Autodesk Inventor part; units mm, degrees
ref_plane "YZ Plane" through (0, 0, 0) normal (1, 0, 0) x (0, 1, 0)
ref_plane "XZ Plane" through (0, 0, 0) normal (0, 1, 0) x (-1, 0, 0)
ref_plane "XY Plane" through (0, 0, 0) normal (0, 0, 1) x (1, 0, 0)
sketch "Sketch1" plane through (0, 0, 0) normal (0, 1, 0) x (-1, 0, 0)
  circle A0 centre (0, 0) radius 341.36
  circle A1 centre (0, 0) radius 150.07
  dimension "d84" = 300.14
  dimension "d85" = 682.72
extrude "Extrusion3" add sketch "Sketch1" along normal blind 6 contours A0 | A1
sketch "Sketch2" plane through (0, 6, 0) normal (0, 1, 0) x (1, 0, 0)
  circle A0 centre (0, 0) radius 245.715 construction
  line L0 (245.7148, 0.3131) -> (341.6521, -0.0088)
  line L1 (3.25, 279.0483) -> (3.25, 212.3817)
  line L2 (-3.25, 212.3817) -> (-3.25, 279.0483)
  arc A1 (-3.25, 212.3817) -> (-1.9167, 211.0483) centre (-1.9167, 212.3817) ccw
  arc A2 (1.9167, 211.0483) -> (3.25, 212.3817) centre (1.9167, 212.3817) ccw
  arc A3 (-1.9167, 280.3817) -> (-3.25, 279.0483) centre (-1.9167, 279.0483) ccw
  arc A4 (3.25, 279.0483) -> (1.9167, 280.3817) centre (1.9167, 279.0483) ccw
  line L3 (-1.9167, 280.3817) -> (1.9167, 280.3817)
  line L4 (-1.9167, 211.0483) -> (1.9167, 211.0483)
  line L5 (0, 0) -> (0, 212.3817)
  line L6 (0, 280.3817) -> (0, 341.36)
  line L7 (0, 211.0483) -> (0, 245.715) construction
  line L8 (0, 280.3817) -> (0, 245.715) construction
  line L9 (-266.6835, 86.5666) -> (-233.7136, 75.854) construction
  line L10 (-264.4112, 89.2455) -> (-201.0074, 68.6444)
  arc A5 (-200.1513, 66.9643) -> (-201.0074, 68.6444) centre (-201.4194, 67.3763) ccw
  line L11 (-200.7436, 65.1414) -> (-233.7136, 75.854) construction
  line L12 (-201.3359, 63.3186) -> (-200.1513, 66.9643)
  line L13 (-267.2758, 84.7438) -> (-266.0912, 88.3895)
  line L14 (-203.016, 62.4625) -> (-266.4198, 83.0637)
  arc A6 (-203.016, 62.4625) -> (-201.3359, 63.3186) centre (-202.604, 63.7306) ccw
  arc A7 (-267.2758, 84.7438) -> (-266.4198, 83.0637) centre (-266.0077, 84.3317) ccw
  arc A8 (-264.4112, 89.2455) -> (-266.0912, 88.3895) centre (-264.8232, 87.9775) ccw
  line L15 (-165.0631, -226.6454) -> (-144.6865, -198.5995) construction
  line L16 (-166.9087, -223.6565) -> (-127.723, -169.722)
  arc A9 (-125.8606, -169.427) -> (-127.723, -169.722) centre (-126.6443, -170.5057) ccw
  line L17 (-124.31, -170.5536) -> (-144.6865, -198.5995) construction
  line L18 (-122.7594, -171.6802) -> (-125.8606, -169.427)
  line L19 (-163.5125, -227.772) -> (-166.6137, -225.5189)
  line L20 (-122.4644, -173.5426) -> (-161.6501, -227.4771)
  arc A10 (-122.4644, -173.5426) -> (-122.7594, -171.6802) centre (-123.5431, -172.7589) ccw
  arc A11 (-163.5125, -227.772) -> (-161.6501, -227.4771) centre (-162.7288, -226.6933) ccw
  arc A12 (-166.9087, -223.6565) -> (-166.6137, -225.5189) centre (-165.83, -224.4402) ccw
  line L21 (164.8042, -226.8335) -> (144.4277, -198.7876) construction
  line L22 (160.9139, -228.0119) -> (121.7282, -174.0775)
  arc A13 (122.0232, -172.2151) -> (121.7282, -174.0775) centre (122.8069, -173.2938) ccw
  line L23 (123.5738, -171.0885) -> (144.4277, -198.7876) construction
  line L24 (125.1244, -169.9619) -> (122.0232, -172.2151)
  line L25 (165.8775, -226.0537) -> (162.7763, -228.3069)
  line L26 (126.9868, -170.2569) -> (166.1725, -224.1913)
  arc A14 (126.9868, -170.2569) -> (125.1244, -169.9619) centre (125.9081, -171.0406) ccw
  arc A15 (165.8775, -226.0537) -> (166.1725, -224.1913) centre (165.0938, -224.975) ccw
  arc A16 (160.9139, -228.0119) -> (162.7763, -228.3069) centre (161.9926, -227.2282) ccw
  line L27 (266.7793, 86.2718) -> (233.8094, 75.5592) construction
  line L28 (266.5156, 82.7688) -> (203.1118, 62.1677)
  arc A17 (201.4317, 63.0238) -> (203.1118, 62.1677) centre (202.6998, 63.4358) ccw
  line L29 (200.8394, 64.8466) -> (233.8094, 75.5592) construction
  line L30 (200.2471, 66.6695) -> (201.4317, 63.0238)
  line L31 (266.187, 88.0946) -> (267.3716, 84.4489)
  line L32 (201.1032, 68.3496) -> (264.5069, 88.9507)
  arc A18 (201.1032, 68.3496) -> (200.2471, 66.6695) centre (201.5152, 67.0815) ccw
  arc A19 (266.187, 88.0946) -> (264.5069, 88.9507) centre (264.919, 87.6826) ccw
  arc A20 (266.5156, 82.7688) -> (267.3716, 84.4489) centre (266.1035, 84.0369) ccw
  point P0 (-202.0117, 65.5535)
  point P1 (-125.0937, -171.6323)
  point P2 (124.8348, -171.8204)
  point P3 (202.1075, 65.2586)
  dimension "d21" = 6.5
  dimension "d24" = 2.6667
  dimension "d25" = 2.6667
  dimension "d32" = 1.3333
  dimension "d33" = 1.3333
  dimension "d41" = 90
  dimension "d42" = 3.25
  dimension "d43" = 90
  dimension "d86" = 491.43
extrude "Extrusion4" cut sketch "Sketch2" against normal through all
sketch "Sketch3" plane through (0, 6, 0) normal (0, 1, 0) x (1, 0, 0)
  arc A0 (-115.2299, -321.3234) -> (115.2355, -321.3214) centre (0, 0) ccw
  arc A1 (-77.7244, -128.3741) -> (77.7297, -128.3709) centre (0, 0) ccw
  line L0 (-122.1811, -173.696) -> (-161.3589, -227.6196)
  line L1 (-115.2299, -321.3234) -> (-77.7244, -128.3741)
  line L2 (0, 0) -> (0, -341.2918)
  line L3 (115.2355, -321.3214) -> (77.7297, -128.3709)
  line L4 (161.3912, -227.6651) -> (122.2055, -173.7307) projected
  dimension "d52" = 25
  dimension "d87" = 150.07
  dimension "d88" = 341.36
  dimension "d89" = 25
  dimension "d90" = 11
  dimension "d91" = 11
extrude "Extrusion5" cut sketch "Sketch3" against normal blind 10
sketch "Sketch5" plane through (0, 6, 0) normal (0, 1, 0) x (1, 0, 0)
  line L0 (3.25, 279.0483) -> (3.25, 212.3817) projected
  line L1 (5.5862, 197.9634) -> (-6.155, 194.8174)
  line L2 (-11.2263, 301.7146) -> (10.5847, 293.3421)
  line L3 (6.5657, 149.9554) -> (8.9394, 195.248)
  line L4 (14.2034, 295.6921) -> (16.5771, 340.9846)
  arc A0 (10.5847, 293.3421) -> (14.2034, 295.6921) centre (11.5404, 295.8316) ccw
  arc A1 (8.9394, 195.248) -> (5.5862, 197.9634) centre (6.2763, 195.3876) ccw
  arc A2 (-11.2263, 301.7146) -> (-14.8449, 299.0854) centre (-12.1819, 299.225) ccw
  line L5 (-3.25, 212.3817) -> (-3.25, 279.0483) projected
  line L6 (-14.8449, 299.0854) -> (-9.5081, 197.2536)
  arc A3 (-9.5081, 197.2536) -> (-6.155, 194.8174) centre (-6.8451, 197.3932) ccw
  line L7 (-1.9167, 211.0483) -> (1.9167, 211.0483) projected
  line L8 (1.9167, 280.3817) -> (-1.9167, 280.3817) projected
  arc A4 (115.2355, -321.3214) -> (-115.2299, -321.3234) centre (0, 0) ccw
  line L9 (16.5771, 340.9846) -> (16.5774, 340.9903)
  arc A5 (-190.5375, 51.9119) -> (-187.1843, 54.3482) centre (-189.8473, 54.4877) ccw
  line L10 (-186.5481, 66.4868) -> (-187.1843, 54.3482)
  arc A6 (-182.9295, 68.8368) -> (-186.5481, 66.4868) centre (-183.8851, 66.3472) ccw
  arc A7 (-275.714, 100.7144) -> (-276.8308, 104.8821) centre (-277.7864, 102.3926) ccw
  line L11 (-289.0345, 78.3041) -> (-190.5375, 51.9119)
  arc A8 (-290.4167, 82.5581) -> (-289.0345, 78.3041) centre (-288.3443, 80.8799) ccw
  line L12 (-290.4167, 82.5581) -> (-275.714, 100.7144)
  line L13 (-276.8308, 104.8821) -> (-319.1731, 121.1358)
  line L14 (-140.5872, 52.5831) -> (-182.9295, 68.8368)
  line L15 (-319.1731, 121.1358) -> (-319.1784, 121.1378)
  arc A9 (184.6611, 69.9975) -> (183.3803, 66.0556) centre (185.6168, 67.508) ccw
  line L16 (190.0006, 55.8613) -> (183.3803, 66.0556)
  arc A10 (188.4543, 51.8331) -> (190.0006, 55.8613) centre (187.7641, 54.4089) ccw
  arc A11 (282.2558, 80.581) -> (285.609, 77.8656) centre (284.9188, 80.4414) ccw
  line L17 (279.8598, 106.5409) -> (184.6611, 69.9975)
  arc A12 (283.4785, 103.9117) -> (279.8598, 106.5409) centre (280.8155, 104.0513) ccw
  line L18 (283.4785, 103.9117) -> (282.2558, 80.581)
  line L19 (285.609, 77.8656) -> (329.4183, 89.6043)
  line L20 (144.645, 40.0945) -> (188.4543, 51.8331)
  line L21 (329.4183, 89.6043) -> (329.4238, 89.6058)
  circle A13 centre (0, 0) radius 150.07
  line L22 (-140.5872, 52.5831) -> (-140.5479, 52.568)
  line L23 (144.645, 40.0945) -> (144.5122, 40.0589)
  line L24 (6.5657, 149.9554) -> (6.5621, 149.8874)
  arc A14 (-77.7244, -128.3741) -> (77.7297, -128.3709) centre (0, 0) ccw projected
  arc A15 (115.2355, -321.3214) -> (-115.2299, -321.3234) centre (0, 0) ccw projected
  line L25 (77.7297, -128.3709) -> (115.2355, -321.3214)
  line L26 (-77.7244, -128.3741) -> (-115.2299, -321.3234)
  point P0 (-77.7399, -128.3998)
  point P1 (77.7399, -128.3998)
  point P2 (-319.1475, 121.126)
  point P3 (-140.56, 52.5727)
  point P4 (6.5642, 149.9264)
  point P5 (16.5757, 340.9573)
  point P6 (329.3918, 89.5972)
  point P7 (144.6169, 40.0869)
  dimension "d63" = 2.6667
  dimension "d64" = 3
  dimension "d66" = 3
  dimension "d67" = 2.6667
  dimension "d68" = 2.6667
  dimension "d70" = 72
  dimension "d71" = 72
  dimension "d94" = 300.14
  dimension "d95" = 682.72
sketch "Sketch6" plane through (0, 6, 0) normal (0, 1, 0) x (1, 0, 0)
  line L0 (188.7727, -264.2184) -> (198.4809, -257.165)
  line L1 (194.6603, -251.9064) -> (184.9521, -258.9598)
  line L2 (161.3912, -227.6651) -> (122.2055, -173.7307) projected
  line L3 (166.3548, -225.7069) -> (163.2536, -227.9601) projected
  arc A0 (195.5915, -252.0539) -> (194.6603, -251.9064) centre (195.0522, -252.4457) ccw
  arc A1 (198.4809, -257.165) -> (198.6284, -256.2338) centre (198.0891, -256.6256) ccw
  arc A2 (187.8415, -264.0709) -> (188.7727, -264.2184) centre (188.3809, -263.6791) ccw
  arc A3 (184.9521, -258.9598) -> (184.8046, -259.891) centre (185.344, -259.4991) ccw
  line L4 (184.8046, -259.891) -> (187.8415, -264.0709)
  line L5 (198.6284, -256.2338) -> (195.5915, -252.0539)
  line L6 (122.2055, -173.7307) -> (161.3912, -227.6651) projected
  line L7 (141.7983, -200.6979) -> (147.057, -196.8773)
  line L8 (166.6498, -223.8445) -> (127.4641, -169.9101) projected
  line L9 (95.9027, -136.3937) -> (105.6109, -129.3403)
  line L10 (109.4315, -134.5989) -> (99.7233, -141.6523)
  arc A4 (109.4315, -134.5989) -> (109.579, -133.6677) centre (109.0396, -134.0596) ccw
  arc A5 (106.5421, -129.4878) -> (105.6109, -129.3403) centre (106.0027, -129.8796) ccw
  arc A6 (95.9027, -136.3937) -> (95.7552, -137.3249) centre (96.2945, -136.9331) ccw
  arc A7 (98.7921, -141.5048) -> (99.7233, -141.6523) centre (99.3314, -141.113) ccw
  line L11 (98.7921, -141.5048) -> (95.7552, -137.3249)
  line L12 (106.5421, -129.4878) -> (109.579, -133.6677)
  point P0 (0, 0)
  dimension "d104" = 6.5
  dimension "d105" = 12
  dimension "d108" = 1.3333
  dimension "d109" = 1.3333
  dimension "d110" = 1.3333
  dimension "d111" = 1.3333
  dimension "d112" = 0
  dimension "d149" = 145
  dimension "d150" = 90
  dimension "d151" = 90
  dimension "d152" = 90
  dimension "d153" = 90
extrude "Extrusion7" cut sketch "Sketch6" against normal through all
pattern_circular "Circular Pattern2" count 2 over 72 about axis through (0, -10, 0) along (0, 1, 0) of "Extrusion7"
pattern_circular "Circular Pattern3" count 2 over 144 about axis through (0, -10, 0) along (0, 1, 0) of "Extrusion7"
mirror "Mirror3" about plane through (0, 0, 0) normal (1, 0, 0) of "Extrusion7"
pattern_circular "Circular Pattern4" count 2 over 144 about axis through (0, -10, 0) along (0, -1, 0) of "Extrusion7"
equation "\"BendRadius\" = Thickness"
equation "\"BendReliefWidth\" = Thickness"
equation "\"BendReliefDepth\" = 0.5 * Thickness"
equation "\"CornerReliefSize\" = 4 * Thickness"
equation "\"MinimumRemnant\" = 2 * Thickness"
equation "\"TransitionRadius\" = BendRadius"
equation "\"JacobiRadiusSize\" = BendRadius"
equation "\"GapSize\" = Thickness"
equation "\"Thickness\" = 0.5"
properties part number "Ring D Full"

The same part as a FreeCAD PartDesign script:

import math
import FreeCAD as App
import Part
import Sketcher

V = App.Vector
Q = App.Units.Quantity

doc = App.newDocument("Part")
body = doc.addObject("PartDesign::Body", "Body")

# Sketch on XZ plane
sketch1 = body.newObject("Sketcher::SketchObject", "Sketch")
sketch1.AttachmentSupport = (doc.getObject("XZ_Plane"), [""])
sketch1.MapMode = "FlatFace"
sketch1.addGeometry(Part.Circle(V(0, 0, 0), V(0, 0, 1), 341.36), False)
sketch1.addConstraint(Sketcher.Constraint("Coincident", 0, 3, -1, 1))
sketch1.addConstraint(Sketcher.Constraint("Diameter", 0, Q("682.72 mm")))
pad1 = body.newObject("PartDesign::Pad", "Pad")
pad1.Profile = sketch1
pad1.Length = 6
pad1.Reversed = True

# Sketch on XZ plane
sketch2 = body.newObject("Sketcher::SketchObject", "Sketch001")
sketch2.AttachmentSupport = (doc.getObject("XZ_Plane"), [""])
sketch2.MapMode = "FlatFace"
sketch2.AttachmentOffset = App.Placement(V(0, 0, -6), App.Rotation())
sketch2.addGeometry(Part.LineSegment(V(3.25, -212.3817, 0), V(3.25, -279.0483, 0)), False)
sketch2.addGeometry(Part.ArcOfCircle(Part.Circle(V(1.9167, -279.0483, 0), V(0, 0, 1), 1.3333), math.radians(-90), math.radians(0)), False)
sketch2.addGeometry(Part.LineSegment(V(1.9167, -280.3817, 0), V(-1.9167, -280.3817, 0)), False)
sketch2.addGeometry(Part.ArcOfCircle(Part.Circle(V(-1.9167, -279.0483, 0), V(0, 0, 1), 1.3334), math.radians(180), math.radians(270)), False)
sketch2.addGeometry(Part.LineSegment(V(-3.25, -279.0483, 0), V(-3.25, -212.3817, 0)), False)
sketch2.addGeometry(Part.ArcOfCircle(Part.Circle(V(-1.9167, -212.3817, 0), V(0, 0, 1), 1.3333), math.radians(90), math.radians(180)), False)
sketch2.addGeometry(Part.LineSegment(V(-1.9167, -211.0483, 0), V(1.9167, -211.0483, 0)), False)
sketch2.addGeometry(Part.ArcOfCircle(Part.Circle(V(1.9167, -212.3817, 0), V(0, 0, 1), 1.3334), math.radians(0), math.radians(90)), False)
sketch2.addGeometry(Part.LineSegment(V(-201.0074, -68.6444, 0), V(-264.4112, -89.2455, 0)), False)
sketch2.addGeometry(Part.ArcOfCircle(Part.Circle(V(-264.8232, -87.9775, 0), V(0, 0, 1), 1.333255), math.radians(-161.999925), math.radians(-71.999925)), False)
sketch2.addGeometry(Part.LineSegment(V(-266.0912, -88.3895, 0), V(-267.2758, -84.7438, 0)), False)
sketch2.addGeometry(Part.ArcOfCircle(Part.Circle(V(-266.0077, -84.3317, 0), V(0, 0, 1), 1.333381), math.radians(108.004162), math.radians(198.002833)), False)
sketch2.addGeometry(Part.LineSegment(V(-266.4198, -83.0637, 0), V(-203.016, -62.4625, 0)), False)
sketch2.addGeometry(Part.ArcOfCircle(Part.Circle(V(-202.604, -63.7306, 0), V(0, 0, 1), 1.33335), math.radians(17.998747), math.radians(107.998747)), False)
sketch2.addGeometry(Part.LineSegment(V(-201.3359, -63.3186, 0), V(-200.1513, -66.9643, 0)), False)
sketch2.addGeometry(Part.ArcOfCircle(Part.Circle(V(-201.4194, -67.3763, 0), V(0, 0, 1), 1.33335), math.radians(-72.001253), math.radians(17.998747)), False)
sketch2.addGeometry(Part.LineSegment(V(-127.723, 169.722, 0), V(-166.9087, 223.6565, 0)), False)
sketch2.addGeometry(Part.ArcOfCircle(Part.Circle(V(-165.83, 224.4402, 0), V(0, 0, 1), 1.333334), math.radians(125.999255), math.radians(215.999255)), False)
sketch2.addGeometry(Part.LineSegment(V(-166.6137, 225.5189, 0), V(-163.5125, 227.772, 0)), False)
sketch2.addGeometry(Part.ArcOfCircle(Part.Circle(V(-162.7288, 226.6933, 0), V(0, 0, 1), 1.333334), math.radians(36.002732), math.radians(125.999255)), False)
sketch2.addGeometry(Part.LineSegment(V(-161.6501, 227.4771, 0), V(-122.4644, 173.5426, 0)), False)
sketch2.addGeometry(Part.ArcOfCircle(Part.Circle(V(-123.5431, 172.7589, 0), V(0, 0, 1), 1.333334), math.radians(-54.000745), math.radians(35.999255)), False)
sketch2.addGeometry(Part.LineSegment(V(-122.7594, 171.6802, 0), V(-125.8606, 169.427, 0)), False)
sketch2.addGeometry(Part.ArcOfCircle(Part.Circle(V(-126.6443, 170.5057, 0), V(0, 0, 1), 1.333334), math.radians(-144.000745), math.radians(-54.000745)), False)
sketch2.addGeometry(Part.LineSegment(V(121.7282, 174.0775, 0), V(160.9139, 228.0119, 0)), False)
sketch2.addGeometry(Part.ArcOfCircle(Part.Circle(V(161.9926, 227.2282, 0), V(0, 0, 1), 1.333334), math.radians(54.000745), math.radians(144.000745)), False)
sketch2.addGeometry(Part.LineSegment(V(162.7763, 228.3069, 0), V(165.8775, 226.0537, 0)), False)
sketch2.addGeometry(Part.ArcOfCircle(Part.Circle(V(165.0938, 224.975, 0), V(0, 0, 1), 1.333334), math.radians(-35.999255), math.radians(54.000745)), False)
sketch2.addGeometry(Part.LineSegment(V(166.1725, 224.1913, 0), V(126.9868, 170.2569, 0)), False)
sketch2.addGeometry(Part.ArcOfCircle(Part.Circle(V(125.9081, 171.0406, 0), V(0, 0, 1), 1.333334), math.radians(-125.999255), math.radians(-35.999255)), False)
sketch2.addGeometry(Part.LineSegment(V(125.1244, 169.9619, 0), V(122.0232, 172.2151, 0)), False)
sketch2.addGeometry(Part.ArcOfCircle(Part.Circle(V(122.8069, 173.2938, 0), V(0, 0, 1), 1.333334), math.radians(144.000745), math.radians(234.000745)), False)
sketch2.addGeometry(Part.LineSegment(V(203.1118, -62.1677, 0), V(266.5156, -82.7688, 0)), False)
sketch2.addGeometry(Part.ArcOfCircle(Part.Circle(V(266.1035, -84.0369, 0), V(0, 0, 1), 1.333381), math.radians(-17.998747), math.radians(71.997167)), False)
sketch2.addGeometry(Part.LineSegment(V(267.3716, -84.4489, 0), V(266.187, -88.0946, 0)), False)
sketch2.addGeometry(Part.ArcOfCircle(Part.Circle(V(264.919, -87.6826, 0), V(0, 0, 1), 1.333255), math.radians(-108.002833), math.radians(-18.000075)), False)
sketch2.addGeometry(Part.LineSegment(V(264.5069, -88.9507, 0), V(201.1032, -68.3496, 0)), False)
sketch2.addGeometry(Part.ArcOfCircle(Part.Circle(V(201.5152, -67.0815, 0), V(0, 0, 1), 1.33335), math.radians(162.001253), math.radians(252.001253)), False)
sketch2.addGeometry(Part.LineSegment(V(200.2471, -66.6695, 0), V(201.4317, -63.0238, 0)), False)
sketch2.addGeometry(Part.ArcOfCircle(Part.Circle(V(202.6998, -63.4358, 0), V(0, 0, 1), 1.33335), math.radians(72.001253), math.radians(162.001253)), False)
sketch2.addConstraint(Sketcher.Constraint("Tangent", 0, 2, 1, 2))
sketch2.addConstraint(Sketcher.Constraint("Tangent", 1, 1, 2, 1))
sketch2.addConstraint(Sketcher.Constraint("Tangent", 2, 2, 3, 2))
sketch2.addConstraint(Sketcher.Constraint("Tangent", 3, 1, 4, 1))
sketch2.addConstraint(Sketcher.Constraint("Tangent", 4, 2, 5, 2))
sketch2.addConstraint(Sketcher.Constraint("Tangent", 5, 1, 6, 1))
sketch2.addConstraint(Sketcher.Constraint("Tangent", 6, 2, 7, 2))
sketch2.addConstraint(Sketcher.Constraint("Tangent", 7, 1, 0, 1))
sketch2.addConstraint(Sketcher.Constraint("Tangent", 8, 2, 9, 2))
sketch2.addConstraint(Sketcher.Constraint("Tangent", 9, 1, 10, 1))
sketch2.addConstraint(Sketcher.Constraint("Tangent", 10, 2, 11, 2))
sketch2.addConstraint(Sketcher.Constraint("Tangent", 11, 1, 12, 1))
sketch2.addConstraint(Sketcher.Constraint("Tangent", 12, 2, 13, 2))
sketch2.addConstraint(Sketcher.Constraint("Tangent", 13, 1, 14, 1))
sketch2.addConstraint(Sketcher.Constraint("Tangent", 14, 2, 15, 2))
sketch2.addConstraint(Sketcher.Constraint("Tangent", 15, 1, 8, 1))
sketch2.addConstraint(Sketcher.Constraint("Tangent", 16, 2, 17, 2))
sketch2.addConstraint(Sketcher.Constraint("Tangent", 17, 1, 18, 1))
sketch2.addConstraint(Sketcher.Constraint("Tangent", 18, 2, 19, 2))
sketch2.addConstraint(Sketcher.Constraint("Tangent", 19, 1, 20, 1))
sketch2.addConstraint(Sketcher.Constraint("Tangent", 20, 2, 21, 2))
sketch2.addConstraint(Sketcher.Constraint("Tangent", 21, 1, 22, 1))
sketch2.addConstraint(Sketcher.Constraint("Tangent", 22, 2, 23, 2))
sketch2.addConstraint(Sketcher.Constraint("Tangent", 23, 1, 16, 1))
sketch2.addConstraint(Sketcher.Constraint("Tangent", 24, 2, 25, 2))
sketch2.addConstraint(Sketcher.Constraint("Tangent", 25, 1, 26, 1))
sketch2.addConstraint(Sketcher.Constraint("Tangent", 26, 2, 27, 2))
sketch2.addConstraint(Sketcher.Constraint("Tangent", 27, 1, 28, 1))
sketch2.addConstraint(Sketcher.Constraint("Tangent", 28, 2, 29, 2))
sketch2.addConstraint(Sketcher.Constraint("Tangent", 29, 1, 30, 1))
sketch2.addConstraint(Sketcher.Constraint("Tangent", 30, 2, 31, 2))
sketch2.addConstraint(Sketcher.Constraint("Tangent", 31, 1, 24, 1))
sketch2.addConstraint(Sketcher.Constraint("Tangent", 32, 2, 33, 2))
sketch2.addConstraint(Sketcher.Constraint("Tangent", 33, 1, 34, 1))
sketch2.addConstraint(Sketcher.Constraint("Tangent", 34, 2, 35, 2))
sketch2.addConstraint(Sketcher.Constraint("Tangent", 35, 1, 36, 1))
sketch2.addConstraint(Sketcher.Constraint("Tangent", 36, 2, 37, 2))
sketch2.addConstraint(Sketcher.Constraint("Tangent", 37, 1, 38, 1))
sketch2.addConstraint(Sketcher.Constraint("Tangent", 38, 2, 39, 2))
sketch2.addConstraint(Sketcher.Constraint("Tangent", 39, 1, 32, 1))
sketch2.addConstraint(Sketcher.Constraint("Vertical", 0))
sketch2.addConstraint(Sketcher.Constraint("Horizontal", 2))
sketch2.addConstraint(Sketcher.Constraint("Vertical", 4))
sketch2.addConstraint(Sketcher.Constraint("Horizontal", 6))
sketch2.addConstraint(Sketcher.Constraint("Equal", 1, 3))
sketch2.addConstraint(Sketcher.Constraint("Equal", 3, 5))
sketch2.addConstraint(Sketcher.Constraint("Equal", 5, 7))
sketch2.addConstraint(Sketcher.Constraint("Equal", 7, 9))
sketch2.addConstraint(Sketcher.Constraint("Equal", 9, 11))
sketch2.addConstraint(Sketcher.Constraint("Equal", 11, 13))
sketch2.addConstraint(Sketcher.Constraint("Equal", 13, 15))
sketch2.addConstraint(Sketcher.Constraint("Equal", 15, 17))
sketch2.addConstraint(Sketcher.Constraint("Equal", 17, 19))
sketch2.addConstraint(Sketcher.Constraint("Equal", 19, 21))
sketch2.addConstraint(Sketcher.Constraint("Equal", 21, 23))
sketch2.addConstraint(Sketcher.Constraint("Equal", 23, 25))
sketch2.addConstraint(Sketcher.Constraint("Equal", 25, 27))
sketch2.addConstraint(Sketcher.Constraint("Equal", 27, 29))
sketch2.addConstraint(Sketcher.Constraint("Equal", 29, 31))
sketch2.addConstraint(Sketcher.Constraint("Equal", 31, 33))
sketch2.addConstraint(Sketcher.Constraint("Equal", 33, 35))
sketch2.addConstraint(Sketcher.Constraint("Equal", 35, 37))
sketch2.addConstraint(Sketcher.Constraint("Equal", 37, 39))
sketch2.addConstraint(Sketcher.Constraint("Perpendicular", 8, 10))
sketch2.addConstraint(Sketcher.Constraint("Perpendicular", 10, 12))
sketch2.addConstraint(Sketcher.Constraint("Perpendicular", 12, 14))
sketch2.addConstraint(Sketcher.Constraint("Perpendicular", 16, 18))
sketch2.addConstraint(Sketcher.Constraint("Perpendicular", 18, 20))
sketch2.addConstraint(Sketcher.Constraint("Perpendicular", 20, 22))
sketch2.addConstraint(Sketcher.Constraint("Perpendicular", 24, 26))
sketch2.addConstraint(Sketcher.Constraint("Perpendicular", 26, 28))
sketch2.addConstraint(Sketcher.Constraint("Perpendicular", 28, 30))
sketch2.addConstraint(Sketcher.Constraint("Perpendicular", 32, 34))
sketch2.addConstraint(Sketcher.Constraint("Perpendicular", 34, 36))
sketch2.addConstraint(Sketcher.Constraint("Perpendicular", 36, 38))
sketch2.addConstraint(Sketcher.Constraint("Equal", 12, 16))
sketch2.addConstraint(Sketcher.Constraint("Equal", 14, 18))
sketch2.addConstraint(Sketcher.Constraint("Equal", 20, 24))
sketch2.addConstraint(Sketcher.Constraint("Equal", 22, 26))
sketch2.addConstraint(Sketcher.Constraint("Equal", 28, 32))
sketch2.addConstraint(Sketcher.Constraint("Equal", 30, 34))
sketch2.addConstraint(Sketcher.Constraint("Radius", 1, Q("0.0525 in")))
sketch2.addConstraint(Sketcher.Constraint("Angle", 8, Q("-162 deg")))
sketch2.addConstraint(Sketcher.Constraint("Angle", 16, Q("126 deg")))
sketch2.addConstraint(Sketcher.Constraint("Angle", 24, Q("54 deg")))
sketch2.addConstraint(Sketcher.Constraint("Angle", 32, Q("-18 deg")))
sketch2.addConstraint(Sketcher.Constraint("DistanceX", 3, 1, 0, 2, Q("0.2559 in")))
sketch2.addConstraint(Sketcher.Constraint("DistanceX", -1, 1, 0, 2, Q("3.25 mm")))
sketch2.addConstraint(Sketcher.Constraint("DistanceX", 8, 2, 15, 3, Q("2.48 in")))
sketch2.addConstraint(Sketcher.Constraint("DistanceX", 23, 3, -1, 1, Q("4.986 in")))
sketch2.addConstraint(Sketcher.Constraint("DistanceY", -1, 1, 25, 3, Q("8.946 in")))
sketch2.addConstraint(Sketcher.Constraint("DistanceX", -1, 1, 29, 3, Q("4.957 in")))
sketch2.addConstraint(Sketcher.Constraint("DistanceY", 37, 3, -1, 1, Q("2.641 in")))
sketch2.addConstraint(Sketcher.Constraint("DistanceY", 5, 1, -1, 1, Q("8.309 in")))
sketch2.addConstraint(Sketcher.Constraint("DistanceX", 18, 2, -1, 1, Q("6.4375 in")))
sketch2.addConstraint(Sketcher.Constraint("DistanceY", 3, 3, 11, 3, Q("7.666 in")))
sketch2.addConstraint(Sketcher.Constraint("DistanceX", 13, 3, 7, 3, Q("8.052 in")))
sketch2.addConstraint(Sketcher.Constraint("DistanceY", 13, 3, 19, 3, Q("11.434 in")))
sketch2.addConstraint(Sketcher.Constraint("DistanceY", 0, 2, 0, 1, Q("66.6666 mm")))
sketch2.addConstraint(Sketcher.Constraint("DistanceX", -1, 1, 39, 3, Q("7.9803 in")))
pocket1 = body.newObject("PartDesign::Pocket", "Pocket")
pocket1.Profile = sketch2
pocket1.Type = "ThroughAll"
pocket1.Reversed = True

# Sketch on XZ plane
sketch3 = body.newObject("Sketcher::SketchObject", "Sketch002")
sketch3.AttachmentSupport = (doc.getObject("XZ_Plane"), [""])
sketch3.MapMode = "FlatFace"
sketch3.AttachmentOffset = App.Placement(V(0, 0, -6), App.Rotation())
sketch3.addGeometry(Part.LineSegment(V(-77.7244, 128.3741, 0), V(-115.2299, 321.3234, 0)), False)
sketch3.addGeometry(Part.ArcOfCircle(Part.Circle(V(0, 0, 0), V(0, 0, 1), 341.360011), math.radians(70.270642), math.radians(109.72836)), False)
sketch3.addGeometry(Part.LineSegment(V(115.2355, 321.3214, 0), V(77.7297, 128.3709, 0)), False)
sketch3.addGeometry(Part.ArcOfCircle(Part.Circle(V(0, 0, 0), V(0, 0, 1), 150.069957), math.radians(58.804729), math.radians(121.192907)), False)
sketch3.addConstraint(Sketcher.Constraint("Coincident", 0, 2, 1, 2))
sketch3.addConstraint(Sketcher.Constraint("Coincident", 1, 1, 2, 1))
sketch3.addConstraint(Sketcher.Constraint("Coincident", 2, 2, 3, 1))
sketch3.addConstraint(Sketcher.Constraint("Coincident", 3, 2, 0, 1))
sketch3.addConstraint(Sketcher.Constraint("Coincident", 1, 3, -1, 1))
sketch3.addConstraint(Sketcher.Constraint("Coincident", 3, 3, -1, 1))
sketch3.addConstraint(Sketcher.Constraint("Radius", 1, Q("341.36 mm")))
sketch3.addConstraint(Sketcher.Constraint("Radius", 3, Q("150.07 mm")))
sketch3.addConstraint(Sketcher.Constraint("Angle", 0, Q("101 deg")))
sketch3.addConstraint(Sketcher.Constraint("Angle", 2, Q("-101 deg")))
sketch3.addConstraint(Sketcher.Constraint("Distance", 0, Q("7.7386 in")))
sketch3.addConstraint(Sketcher.Constraint("Distance", 2, Q("196.562 mm")))
pocket2 = body.newObject("PartDesign::Pocket", "Pocket001")
pocket2.Profile = sketch3
pocket2.Length = Q("0.3937008 in")
pocket2.Reversed = True

# Sketch on XZ plane
sketch4 = body.newObject("Sketcher::SketchObject", "Sketch003")
sketch4.AttachmentSupport = (doc.getObject("XZ_Plane"), [""])
sketch4.MapMode = "FlatFace"
sketch4.AttachmentOffset = App.Placement(V(0, 0, -6), App.Rotation())
sketch4.addGeometry(Part.ArcOfCircle(Part.Circle(V(188.3809, 263.6791, 0), V(0, 0, 1), 0.666678), math.radians(54.001696), math.radians(144.006747)), False)
sketch4.addGeometry(Part.LineSegment(V(188.7727, 264.2184, 0), V(198.4809, 257.165, 0)), False)
sketch4.addGeometry(Part.ArcOfCircle(Part.Circle(V(198.0891, 256.6256, 0), V(0, 0, 1), 0.666678), math.radians(-35.998304), math.radians(54.006747)), False)
sketch4.addGeometry(Part.LineSegment(V(198.6284, 256.2338, 0), V(195.5915, 252.0539, 0)), False)
sketch4.addGeometry(Part.ArcOfCircle(Part.Circle(V(195.0522, 252.4457, 0), V(0, 0, 1), 0.666597), math.radians(-126.005258), math.radians(-35.998304)), False)
sketch4.addGeometry(Part.LineSegment(V(194.6603, 251.9064, 0), V(184.9521, 258.9598, 0)), False)
sketch4.addGeometry(Part.ArcOfCircle(Part.Circle(V(185.344, 259.4991, 0), V(0, 0, 1), 0.666656), math.radians(143.999794), math.radians(233.994742)), False)
sketch4.addGeometry(Part.LineSegment(V(184.8046, 259.891, 0), V(187.8415, 264.0709, 0)), False)
sketch4.addGeometry(Part.LineSegment(V(105.6109, 129.3403, 0), V(95.9027, 136.3937, 0)), False)
sketch4.addGeometry(Part.ArcOfCircle(Part.Circle(V(96.2945, 136.9331, 0), V(0, 0, 1), 0.666678), math.radians(144.001696), math.radians(234.006747)), False)
sketch4.addGeometry(Part.LineSegment(V(95.7552, 137.3249, 0), V(98.7921, 141.5048, 0)), False)
sketch4.addGeometry(Part.ArcOfCircle(Part.Circle(V(99.3314, 141.113, 0), V(0, 0, 1), 0.666597), math.radians(53.994742), math.radians(144.001696)), False)
sketch4.addGeometry(Part.LineSegment(V(99.7233, 141.6523, 0), V(109.4315, 134.5989, 0)), False)
sketch4.addGeometry(Part.ArcOfCircle(Part.Circle(V(109.0396, 134.0596, 0), V(0, 0, 1), 0.666656), math.radians(-36.000206), math.radians(53.994742)), False)
sketch4.addGeometry(Part.LineSegment(V(109.579, 133.6677, 0), V(106.5421, 129.4878, 0)), False)
sketch4.addGeometry(Part.ArcOfCircle(Part.Circle(V(106.0027, 129.8796, 0), V(0, 0, 1), 0.666678), math.radians(-125.998304), math.radians(-35.993253)), False)
sketch4.addConstraint(Sketcher.Constraint("Tangent", 0, 1, 1, 1))
sketch4.addConstraint(Sketcher.Constraint("Tangent", 1, 2, 2, 2))
sketch4.addConstraint(Sketcher.Constraint("Tangent", 2, 1, 3, 1))
sketch4.addConstraint(Sketcher.Constraint("Tangent", 3, 2, 4, 2))
sketch4.addConstraint(Sketcher.Constraint("Tangent", 4, 1, 5, 1))
sketch4.addConstraint(Sketcher.Constraint("Tangent", 5, 2, 6, 2))
sketch4.addConstraint(Sketcher.Constraint("Tangent", 6, 1, 7, 1))
sketch4.addConstraint(Sketcher.Constraint("Tangent", 7, 2, 0, 2))
sketch4.addConstraint(Sketcher.Constraint("Tangent", 8, 2, 9, 2))
sketch4.addConstraint(Sketcher.Constraint("Tangent", 9, 1, 10, 1))
sketch4.addConstraint(Sketcher.Constraint("Tangent", 10, 2, 11, 2))
sketch4.addConstraint(Sketcher.Constraint("Tangent", 11, 1, 12, 1))
sketch4.addConstraint(Sketcher.Constraint("Tangent", 12, 2, 13, 2))
sketch4.addConstraint(Sketcher.Constraint("Tangent", 13, 1, 14, 1))
sketch4.addConstraint(Sketcher.Constraint("Tangent", 14, 2, 15, 2))
sketch4.addConstraint(Sketcher.Constraint("Tangent", 15, 1, 8, 1))
sketch4.addConstraint(Sketcher.Constraint("Equal", 0, 2))
sketch4.addConstraint(Sketcher.Constraint("Equal", 2, 4))
sketch4.addConstraint(Sketcher.Constraint("Equal", 4, 6))
sketch4.addConstraint(Sketcher.Constraint("Equal", 6, 9))
sketch4.addConstraint(Sketcher.Constraint("Equal", 9, 11))
sketch4.addConstraint(Sketcher.Constraint("Equal", 11, 13))
sketch4.addConstraint(Sketcher.Constraint("Equal", 13, 15))
sketch4.addConstraint(Sketcher.Constraint("Perpendicular", 1, 3))
sketch4.addConstraint(Sketcher.Constraint("Perpendicular", 3, 5))
sketch4.addConstraint(Sketcher.Constraint("Perpendicular", 5, 7))
sketch4.addConstraint(Sketcher.Constraint("Perpendicular", 7, 8))
sketch4.addConstraint(Sketcher.Constraint("Perpendicular", 8, 10))
sketch4.addConstraint(Sketcher.Constraint("Perpendicular", 10, 12))
sketch4.addConstraint(Sketcher.Constraint("Perpendicular", 12, 14))
sketch4.addConstraint(Sketcher.Constraint("Equal", 5, 8))
sketch4.addConstraint(Sketcher.Constraint("Equal", 7, 10))
sketch4.addConstraint(Sketcher.Constraint("Radius", 0, Q("0.6667 mm")))
sketch4.addConstraint(Sketcher.Constraint("Angle", 1, Q("-36 deg")))
sketch4.addConstraint(Sketcher.Constraint("Distance", 1, Q("12 mm")))
sketch4.addConstraint(Sketcher.Constraint("DistanceY", 9, 3, 0, 3, Q("4.99 in")))
sketch4.addConstraint(Sketcher.Constraint("DistanceY", 3, 2, 2, 3, Q("0.18 in")))
sketch4.addConstraint(Sketcher.Constraint("DistanceX", -1, 1, 6, 3, Q("7.297 in")))
sketch4.addConstraint(Sketcher.Constraint("DistanceY", -1, 1, 4, 3, Q("9.9388 in")))
sketch4.addConstraint(Sketcher.Constraint("DistanceX", -1, 1, 13, 3, Q("4.2929 in")))
pocket3 = body.newObject("PartDesign::Pocket", "Pocket002")
pocket3.Profile = sketch4
pocket3.Type = "ThroughAll"
pocket3.Reversed = True
doc.recompute()

polarpattern = body.newObject("PartDesign::PolarPattern", "PolarPattern")
polarpattern.Originals = [pocket3]
polarpattern.Axis = (doc.getObject("Y_Axis"), [""])
polarpattern.Angle = 72
polarpattern.Occurrences = 2
body.Tip = polarpattern
doc.recompute()

polarpattern2 = body.newObject("PartDesign::PolarPattern", "PolarPattern001")
polarpattern2.Originals = [pocket3]
polarpattern2.Axis = (doc.getObject("Y_Axis"), [""])
polarpattern2.Angle = 144
polarpattern2.Occurrences = 2
body.Tip = polarpattern2
doc.recompute()

mirrored = body.newObject("PartDesign::Mirrored", "Mirrored")
mirrored.Originals = [pocket3]
mirrored.MirrorPlane = (doc.getObject("YZ_Plane"), [""])
body.Tip = mirrored
doc.recompute()

polarpattern3 = body.newObject("PartDesign::PolarPattern", "PolarPattern002")
polarpattern3.Originals = [pocket3]
polarpattern3.Axis = (doc.getObject("Y_Axis"), [""])
polarpattern3.Angle = 144
polarpattern3.Occurrences = 2
polarpattern3.Reversed = True
body.Tip = polarpattern3

doc.recompute()
